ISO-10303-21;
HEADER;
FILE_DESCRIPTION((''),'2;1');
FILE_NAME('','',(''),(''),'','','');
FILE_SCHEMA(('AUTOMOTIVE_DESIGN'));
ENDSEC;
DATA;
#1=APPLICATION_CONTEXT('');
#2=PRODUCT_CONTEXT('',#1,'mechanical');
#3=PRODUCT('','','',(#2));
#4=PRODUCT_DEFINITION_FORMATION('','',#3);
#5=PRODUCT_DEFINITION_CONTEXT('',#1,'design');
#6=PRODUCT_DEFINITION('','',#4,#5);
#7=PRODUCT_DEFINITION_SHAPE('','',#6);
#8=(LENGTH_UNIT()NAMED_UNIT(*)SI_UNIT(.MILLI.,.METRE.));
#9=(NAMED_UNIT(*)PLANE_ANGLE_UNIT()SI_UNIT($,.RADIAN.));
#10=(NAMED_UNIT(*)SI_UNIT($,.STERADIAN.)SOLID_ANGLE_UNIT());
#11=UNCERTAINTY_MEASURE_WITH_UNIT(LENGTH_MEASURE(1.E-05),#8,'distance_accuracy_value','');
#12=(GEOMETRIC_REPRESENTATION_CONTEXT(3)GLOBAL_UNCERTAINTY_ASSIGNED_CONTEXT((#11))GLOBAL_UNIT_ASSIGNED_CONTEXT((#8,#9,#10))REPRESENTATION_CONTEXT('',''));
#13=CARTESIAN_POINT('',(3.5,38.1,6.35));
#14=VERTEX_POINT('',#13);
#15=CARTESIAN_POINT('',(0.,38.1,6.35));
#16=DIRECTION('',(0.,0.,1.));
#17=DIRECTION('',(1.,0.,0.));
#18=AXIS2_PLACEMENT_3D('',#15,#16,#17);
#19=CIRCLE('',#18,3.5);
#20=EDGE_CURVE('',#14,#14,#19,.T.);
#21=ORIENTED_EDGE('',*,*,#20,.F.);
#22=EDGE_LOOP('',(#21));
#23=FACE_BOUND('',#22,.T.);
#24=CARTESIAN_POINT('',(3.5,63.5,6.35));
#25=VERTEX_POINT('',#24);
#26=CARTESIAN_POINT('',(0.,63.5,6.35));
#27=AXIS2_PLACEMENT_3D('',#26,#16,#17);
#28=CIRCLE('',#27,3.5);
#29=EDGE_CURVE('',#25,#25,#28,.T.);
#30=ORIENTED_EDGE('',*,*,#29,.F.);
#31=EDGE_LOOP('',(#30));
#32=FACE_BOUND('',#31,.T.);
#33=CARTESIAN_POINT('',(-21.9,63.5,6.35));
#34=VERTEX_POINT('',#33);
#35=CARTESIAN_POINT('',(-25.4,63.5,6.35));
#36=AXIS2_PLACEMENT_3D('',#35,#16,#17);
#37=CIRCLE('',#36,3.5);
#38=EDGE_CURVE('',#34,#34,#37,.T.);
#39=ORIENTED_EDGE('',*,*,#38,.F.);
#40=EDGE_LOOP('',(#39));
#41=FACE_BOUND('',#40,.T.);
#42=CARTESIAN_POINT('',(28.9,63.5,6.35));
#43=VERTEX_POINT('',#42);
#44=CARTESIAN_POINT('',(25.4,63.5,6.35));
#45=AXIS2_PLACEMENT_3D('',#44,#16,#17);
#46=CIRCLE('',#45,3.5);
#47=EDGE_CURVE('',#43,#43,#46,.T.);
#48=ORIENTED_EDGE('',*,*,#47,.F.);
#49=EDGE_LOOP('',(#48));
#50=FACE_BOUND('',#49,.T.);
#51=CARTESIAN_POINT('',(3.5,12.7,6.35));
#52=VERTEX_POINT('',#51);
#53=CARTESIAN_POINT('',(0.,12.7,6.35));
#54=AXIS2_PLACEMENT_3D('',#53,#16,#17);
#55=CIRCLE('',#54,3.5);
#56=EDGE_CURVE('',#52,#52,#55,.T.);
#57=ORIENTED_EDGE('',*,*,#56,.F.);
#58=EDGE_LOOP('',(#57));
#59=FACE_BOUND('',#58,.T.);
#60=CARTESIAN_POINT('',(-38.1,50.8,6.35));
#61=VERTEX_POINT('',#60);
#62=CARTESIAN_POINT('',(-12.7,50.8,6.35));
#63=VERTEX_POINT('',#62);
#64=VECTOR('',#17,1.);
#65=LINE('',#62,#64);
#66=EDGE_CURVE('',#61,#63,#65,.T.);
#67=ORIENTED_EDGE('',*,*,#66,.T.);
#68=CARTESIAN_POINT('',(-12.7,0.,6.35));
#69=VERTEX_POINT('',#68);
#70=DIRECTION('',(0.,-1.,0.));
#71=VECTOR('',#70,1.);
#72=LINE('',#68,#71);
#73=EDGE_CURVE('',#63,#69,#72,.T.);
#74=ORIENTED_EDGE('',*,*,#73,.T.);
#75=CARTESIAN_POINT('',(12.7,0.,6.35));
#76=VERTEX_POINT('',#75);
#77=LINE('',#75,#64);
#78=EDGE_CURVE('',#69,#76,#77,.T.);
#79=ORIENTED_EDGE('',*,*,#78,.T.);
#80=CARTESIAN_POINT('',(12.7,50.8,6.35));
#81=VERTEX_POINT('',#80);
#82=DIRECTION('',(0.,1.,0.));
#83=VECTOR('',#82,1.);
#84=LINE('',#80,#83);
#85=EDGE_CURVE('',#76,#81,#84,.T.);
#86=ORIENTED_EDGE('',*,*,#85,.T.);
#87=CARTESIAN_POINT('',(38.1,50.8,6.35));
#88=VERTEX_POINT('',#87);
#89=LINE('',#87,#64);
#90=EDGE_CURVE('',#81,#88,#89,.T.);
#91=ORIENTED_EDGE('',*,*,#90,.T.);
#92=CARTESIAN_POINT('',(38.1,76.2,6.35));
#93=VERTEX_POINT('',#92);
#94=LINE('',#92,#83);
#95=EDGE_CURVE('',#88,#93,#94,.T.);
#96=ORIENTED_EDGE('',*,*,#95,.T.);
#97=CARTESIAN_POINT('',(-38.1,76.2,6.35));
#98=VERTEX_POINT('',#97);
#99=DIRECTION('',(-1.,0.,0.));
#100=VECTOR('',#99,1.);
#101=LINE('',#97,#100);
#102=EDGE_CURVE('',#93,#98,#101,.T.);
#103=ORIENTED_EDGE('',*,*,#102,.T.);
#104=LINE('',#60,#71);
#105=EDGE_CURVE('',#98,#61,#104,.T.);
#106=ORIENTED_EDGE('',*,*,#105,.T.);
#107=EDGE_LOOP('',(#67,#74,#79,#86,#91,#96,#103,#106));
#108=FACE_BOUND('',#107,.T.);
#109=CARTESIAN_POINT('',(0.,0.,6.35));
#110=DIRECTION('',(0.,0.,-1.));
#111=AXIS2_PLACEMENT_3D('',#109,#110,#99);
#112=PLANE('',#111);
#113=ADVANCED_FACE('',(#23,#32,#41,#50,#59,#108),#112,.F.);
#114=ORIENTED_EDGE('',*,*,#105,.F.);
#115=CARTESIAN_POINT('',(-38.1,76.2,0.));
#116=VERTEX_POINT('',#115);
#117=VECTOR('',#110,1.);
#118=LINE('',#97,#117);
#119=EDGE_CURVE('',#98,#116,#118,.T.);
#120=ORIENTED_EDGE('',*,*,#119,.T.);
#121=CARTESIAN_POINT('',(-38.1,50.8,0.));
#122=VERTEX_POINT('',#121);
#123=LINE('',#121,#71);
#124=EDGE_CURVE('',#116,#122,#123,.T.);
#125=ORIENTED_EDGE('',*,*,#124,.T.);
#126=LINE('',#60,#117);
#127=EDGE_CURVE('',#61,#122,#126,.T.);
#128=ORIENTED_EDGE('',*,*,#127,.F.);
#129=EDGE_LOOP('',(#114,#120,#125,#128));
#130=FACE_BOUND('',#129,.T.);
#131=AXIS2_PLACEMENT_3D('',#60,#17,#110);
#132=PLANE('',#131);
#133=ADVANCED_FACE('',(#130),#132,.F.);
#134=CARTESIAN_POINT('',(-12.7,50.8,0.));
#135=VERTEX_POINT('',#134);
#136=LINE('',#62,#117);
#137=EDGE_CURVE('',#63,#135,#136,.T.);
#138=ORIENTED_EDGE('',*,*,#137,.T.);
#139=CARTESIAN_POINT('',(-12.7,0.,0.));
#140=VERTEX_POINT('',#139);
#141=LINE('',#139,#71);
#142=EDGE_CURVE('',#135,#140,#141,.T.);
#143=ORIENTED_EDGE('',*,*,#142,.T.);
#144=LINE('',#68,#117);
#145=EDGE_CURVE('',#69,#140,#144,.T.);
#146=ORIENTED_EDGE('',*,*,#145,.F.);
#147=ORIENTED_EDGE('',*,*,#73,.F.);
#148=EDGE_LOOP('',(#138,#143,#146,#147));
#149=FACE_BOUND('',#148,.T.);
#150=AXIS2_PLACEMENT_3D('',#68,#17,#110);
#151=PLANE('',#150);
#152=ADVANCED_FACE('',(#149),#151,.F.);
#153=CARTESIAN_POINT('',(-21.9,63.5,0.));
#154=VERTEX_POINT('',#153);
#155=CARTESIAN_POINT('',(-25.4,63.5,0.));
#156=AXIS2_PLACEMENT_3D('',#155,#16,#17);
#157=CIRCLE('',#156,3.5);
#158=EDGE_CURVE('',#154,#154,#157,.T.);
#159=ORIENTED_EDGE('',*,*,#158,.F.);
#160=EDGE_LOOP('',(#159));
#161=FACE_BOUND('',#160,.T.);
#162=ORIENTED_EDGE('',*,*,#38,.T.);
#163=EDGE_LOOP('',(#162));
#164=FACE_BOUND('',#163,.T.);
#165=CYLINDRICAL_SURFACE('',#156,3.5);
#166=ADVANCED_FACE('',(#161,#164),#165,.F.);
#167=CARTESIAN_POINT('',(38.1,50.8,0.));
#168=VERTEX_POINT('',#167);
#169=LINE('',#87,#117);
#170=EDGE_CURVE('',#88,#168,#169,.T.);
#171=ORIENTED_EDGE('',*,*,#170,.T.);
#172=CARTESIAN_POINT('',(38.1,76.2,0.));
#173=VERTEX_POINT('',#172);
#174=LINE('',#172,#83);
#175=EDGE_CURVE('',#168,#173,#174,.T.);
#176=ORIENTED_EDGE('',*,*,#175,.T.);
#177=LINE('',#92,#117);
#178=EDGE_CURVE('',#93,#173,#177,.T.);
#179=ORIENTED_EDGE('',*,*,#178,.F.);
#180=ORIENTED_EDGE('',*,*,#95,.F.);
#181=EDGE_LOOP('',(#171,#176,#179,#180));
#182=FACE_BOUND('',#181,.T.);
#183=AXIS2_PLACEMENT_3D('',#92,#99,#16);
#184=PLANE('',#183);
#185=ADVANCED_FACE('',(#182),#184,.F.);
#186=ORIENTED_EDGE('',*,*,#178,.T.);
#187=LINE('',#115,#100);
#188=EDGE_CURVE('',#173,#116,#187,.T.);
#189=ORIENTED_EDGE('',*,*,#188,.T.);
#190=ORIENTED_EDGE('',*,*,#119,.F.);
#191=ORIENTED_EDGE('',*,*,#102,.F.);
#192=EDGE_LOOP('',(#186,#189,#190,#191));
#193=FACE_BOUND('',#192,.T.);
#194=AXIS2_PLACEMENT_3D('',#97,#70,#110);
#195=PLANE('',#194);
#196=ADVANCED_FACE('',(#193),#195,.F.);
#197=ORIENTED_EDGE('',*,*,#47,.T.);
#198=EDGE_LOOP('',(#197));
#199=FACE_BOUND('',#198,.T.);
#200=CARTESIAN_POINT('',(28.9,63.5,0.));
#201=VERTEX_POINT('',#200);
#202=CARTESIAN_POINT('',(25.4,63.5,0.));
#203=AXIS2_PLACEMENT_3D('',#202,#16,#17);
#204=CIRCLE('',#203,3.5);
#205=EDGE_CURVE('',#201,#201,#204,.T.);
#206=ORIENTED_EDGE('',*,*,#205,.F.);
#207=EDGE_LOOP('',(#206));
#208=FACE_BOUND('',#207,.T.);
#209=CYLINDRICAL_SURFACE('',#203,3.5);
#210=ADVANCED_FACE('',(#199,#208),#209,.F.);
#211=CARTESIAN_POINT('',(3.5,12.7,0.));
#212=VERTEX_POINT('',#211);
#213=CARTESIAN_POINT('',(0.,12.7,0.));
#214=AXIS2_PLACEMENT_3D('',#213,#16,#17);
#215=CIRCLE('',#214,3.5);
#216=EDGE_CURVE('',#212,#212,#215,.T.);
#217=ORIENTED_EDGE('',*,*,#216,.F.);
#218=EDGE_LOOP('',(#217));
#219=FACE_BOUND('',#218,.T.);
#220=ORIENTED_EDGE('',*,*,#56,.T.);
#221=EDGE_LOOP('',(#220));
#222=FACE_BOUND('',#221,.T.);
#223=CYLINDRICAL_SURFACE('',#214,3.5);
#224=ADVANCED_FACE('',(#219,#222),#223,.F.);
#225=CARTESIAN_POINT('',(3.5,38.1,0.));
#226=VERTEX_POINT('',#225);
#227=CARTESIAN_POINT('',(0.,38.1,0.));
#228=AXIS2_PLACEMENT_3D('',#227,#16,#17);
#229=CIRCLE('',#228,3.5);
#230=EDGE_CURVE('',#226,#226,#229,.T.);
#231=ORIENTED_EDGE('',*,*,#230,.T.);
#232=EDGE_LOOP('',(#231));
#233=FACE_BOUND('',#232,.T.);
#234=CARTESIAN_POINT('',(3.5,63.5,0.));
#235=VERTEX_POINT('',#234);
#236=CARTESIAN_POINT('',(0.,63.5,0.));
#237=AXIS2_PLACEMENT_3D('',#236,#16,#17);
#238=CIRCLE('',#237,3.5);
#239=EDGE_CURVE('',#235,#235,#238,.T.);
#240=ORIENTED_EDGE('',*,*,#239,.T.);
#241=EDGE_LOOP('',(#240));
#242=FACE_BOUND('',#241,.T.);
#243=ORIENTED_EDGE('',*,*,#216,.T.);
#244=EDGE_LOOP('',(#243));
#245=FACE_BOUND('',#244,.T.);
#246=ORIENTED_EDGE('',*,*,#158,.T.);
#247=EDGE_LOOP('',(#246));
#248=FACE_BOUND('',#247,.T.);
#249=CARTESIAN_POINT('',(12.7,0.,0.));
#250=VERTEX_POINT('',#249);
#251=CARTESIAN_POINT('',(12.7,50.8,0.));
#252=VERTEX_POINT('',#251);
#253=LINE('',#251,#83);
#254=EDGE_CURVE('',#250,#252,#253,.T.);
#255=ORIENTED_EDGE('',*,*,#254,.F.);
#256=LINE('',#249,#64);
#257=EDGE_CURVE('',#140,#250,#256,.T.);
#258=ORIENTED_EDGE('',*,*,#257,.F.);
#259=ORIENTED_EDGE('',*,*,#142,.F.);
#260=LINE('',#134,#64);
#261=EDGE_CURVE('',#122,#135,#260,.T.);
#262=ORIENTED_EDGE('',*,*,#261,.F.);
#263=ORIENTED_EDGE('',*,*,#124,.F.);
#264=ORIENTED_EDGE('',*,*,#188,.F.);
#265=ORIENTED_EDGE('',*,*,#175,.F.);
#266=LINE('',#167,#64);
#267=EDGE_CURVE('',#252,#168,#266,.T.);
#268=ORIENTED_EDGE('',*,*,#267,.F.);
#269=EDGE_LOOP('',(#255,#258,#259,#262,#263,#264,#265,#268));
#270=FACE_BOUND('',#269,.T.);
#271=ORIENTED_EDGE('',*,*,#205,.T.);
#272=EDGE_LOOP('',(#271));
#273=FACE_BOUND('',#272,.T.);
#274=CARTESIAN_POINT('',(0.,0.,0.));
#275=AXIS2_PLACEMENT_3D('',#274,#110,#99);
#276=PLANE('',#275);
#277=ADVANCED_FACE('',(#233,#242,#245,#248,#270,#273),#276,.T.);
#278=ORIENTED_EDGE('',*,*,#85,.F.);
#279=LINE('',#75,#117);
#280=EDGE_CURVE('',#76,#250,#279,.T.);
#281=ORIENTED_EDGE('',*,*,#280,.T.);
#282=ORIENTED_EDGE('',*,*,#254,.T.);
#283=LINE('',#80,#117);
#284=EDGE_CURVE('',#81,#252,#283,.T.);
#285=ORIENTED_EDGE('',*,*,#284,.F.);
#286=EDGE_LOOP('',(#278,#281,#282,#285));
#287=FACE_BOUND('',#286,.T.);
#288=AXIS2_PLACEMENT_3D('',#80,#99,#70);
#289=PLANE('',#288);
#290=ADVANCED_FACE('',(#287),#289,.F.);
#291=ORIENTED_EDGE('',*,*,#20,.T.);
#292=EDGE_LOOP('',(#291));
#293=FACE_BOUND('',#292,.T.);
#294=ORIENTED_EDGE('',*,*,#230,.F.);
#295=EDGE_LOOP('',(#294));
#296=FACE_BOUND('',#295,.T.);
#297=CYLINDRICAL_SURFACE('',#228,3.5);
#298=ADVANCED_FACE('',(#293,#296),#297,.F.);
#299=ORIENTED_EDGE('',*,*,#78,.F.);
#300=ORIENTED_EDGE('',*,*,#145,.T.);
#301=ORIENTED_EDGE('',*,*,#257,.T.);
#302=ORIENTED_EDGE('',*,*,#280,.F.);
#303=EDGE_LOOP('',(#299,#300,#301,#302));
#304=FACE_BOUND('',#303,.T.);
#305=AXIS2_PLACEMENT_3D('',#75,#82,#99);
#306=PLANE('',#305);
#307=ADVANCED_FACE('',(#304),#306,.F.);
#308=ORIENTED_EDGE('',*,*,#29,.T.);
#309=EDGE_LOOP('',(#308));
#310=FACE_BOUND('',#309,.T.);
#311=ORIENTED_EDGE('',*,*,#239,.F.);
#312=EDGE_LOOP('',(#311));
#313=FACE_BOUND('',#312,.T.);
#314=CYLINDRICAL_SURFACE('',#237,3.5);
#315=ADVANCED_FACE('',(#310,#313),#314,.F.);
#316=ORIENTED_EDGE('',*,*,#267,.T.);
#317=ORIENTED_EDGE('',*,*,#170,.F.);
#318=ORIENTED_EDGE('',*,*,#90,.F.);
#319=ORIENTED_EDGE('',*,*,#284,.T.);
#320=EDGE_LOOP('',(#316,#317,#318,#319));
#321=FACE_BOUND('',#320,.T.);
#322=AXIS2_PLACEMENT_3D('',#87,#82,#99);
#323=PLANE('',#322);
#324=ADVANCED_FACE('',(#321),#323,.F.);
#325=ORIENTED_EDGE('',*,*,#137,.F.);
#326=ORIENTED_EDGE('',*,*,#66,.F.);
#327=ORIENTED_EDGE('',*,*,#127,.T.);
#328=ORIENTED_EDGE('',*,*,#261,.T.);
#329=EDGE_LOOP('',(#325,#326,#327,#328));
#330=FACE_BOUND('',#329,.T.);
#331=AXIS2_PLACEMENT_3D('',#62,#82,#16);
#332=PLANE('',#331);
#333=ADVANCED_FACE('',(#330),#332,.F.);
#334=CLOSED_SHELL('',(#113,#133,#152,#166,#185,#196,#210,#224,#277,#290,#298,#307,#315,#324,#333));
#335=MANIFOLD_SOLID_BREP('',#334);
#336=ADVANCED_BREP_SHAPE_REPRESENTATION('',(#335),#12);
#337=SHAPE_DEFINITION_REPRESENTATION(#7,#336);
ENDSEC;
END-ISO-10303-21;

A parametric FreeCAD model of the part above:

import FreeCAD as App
import Part
import Sketcher
Q = App.Units.Quantity

doc = App.newDocument("Part")
body = doc.addObject("PartDesign::Body", "Body")

sketch1 = body.newObject("Sketcher::SketchObject", "Sketch")
sketch1.AttachmentSupport = (doc.getObject("XY_Plane"), [""])
sketch1.MapMode = "FlatFace"
sketch1.addGeometry([
    Part.LineSegment(App.Vector(-13, 0, 0), App.Vector(13, 0, 0)),
    Part.LineSegment(App.Vector(13, 0, 0), App.Vector(13, 51, 0)),
    Part.LineSegment(App.Vector(13, 51, 0), App.Vector(38, 51, 0)),
    Part.LineSegment(App.Vector(38, 51, 0), App.Vector(38, 76, 0)),
    Part.LineSegment(App.Vector(38, 76, 0), App.Vector(-38, 76, 0)),
    Part.LineSegment(App.Vector(-38, 76, 0), App.Vector(-38, 51, 0)),
    Part.LineSegment(App.Vector(-38, 51, 0), App.Vector(-13, 51, 0)),
    Part.LineSegment(App.Vector(-13, 51, 0), App.Vector(-13, 0, 0)),
], False)
sketch1.addConstraint([
    Sketcher.Constraint("Coincident", 0, 2, 1, 1),
    Sketcher.Constraint("Coincident", 1, 2, 2, 1),
    Sketcher.Constraint("Coincident", 2, 2, 3, 1),
    Sketcher.Constraint("Coincident", 3, 2, 4, 1),
    Sketcher.Constraint("Coincident", 4, 2, 5, 1),
    Sketcher.Constraint("Coincident", 5, 2, 6, 1),
    Sketcher.Constraint("Coincident", 6, 2, 7, 1),
    Sketcher.Constraint("Coincident", 7, 2, 0, 1),
    Sketcher.Constraint("Horizontal", 0),
    Sketcher.Constraint("Vertical", 1),
    Sketcher.Constraint("Horizontal", 2),
    Sketcher.Constraint("Vertical", 3),
    Sketcher.Constraint("Horizontal", 4),
    Sketcher.Constraint("Vertical", 5),
    Sketcher.Constraint("Horizontal", 6),
    Sketcher.Constraint("Vertical", 7),
    Sketcher.Constraint("Symmetric", 0, 2, 7, 2, -1, 1),
    Sketcher.Constraint("Symmetric", 2, 2, 5, 2, -2),
    Sketcher.Constraint("Equal", 0, 2),
    Sketcher.Constraint("Equal", 6, 3),
    Sketcher.Constraint("DistanceX", 0, 1, 0, 2, Q("1 in")),
    Sketcher.Constraint("DistanceY", 1, 1, 1, 2, Q("2 in")),
])
pad1 = body.newObject("PartDesign::Pad", "Pad")
pad1.Profile = sketch1
pad1.Length = Q("0.25 in")

sketch2 = body.newObject("Sketcher::SketchObject", "Sketch001")
sketch2.AttachmentSupport = (doc.getObject("XY_Plane"), [""])
sketch2.MapMode = "FlatFace"
sketch2.AttachmentOffset = App.Placement(App.Vector(0, 0, 0.25 * 25.4), App.Rotation())
sketch2.addGeometry([
    Part.Circle(App.Vector(0, 63.5, 0), App.Vector(0, 0, 1), 3.5),
    Part.Circle(App.Vector(25.4, 63.5, 0), App.Vector(0, 0, 1), 3.5),
    Part.Circle(App.Vector(-25.4, 63.5, 0), App.Vector(0, 0, 1), 3.5),
    Part.Circle(App.Vector(0, 38.1, 0), App.Vector(0, 0, 1), 3.5),
    Part.Circle(App.Vector(0, 12.7, 0), App.Vector(0, 0, 1), 3.5),
], False)
sketch2.addConstraint([
    Sketcher.Constraint("Equal", 0, 1),
    Sketcher.Constraint("Equal", 1, 2),
    Sketcher.Constraint("Equal", 2, 3),
    Sketcher.Constraint("Equal", 3, 4),
    Sketcher.Constraint("Symmetric", 1, 3, 2, 3, -2),
    Sketcher.Constraint("PointOnObject", 0, 3, -2),
    Sketcher.Constraint("PointOnObject", 3, 3, -2),
    Sketcher.Constraint("PointOnObject", 4, 3, -2),
    Sketcher.Constraint("Horizontal", 0, 3, 1, 3),
    Sketcher.Constraint("DistanceX", -1, 1, 1, 3, Q("1 in")),
    Sketcher.Constraint("DistanceY", 3, 3, 0, 3, Q("1 in")),
    Sketcher.Constraint("DistanceY", 4, 3, 3, 3, Q("1 in")),
    Sketcher.Constraint("DistanceY", -1, 1, 0, 3, Q("2.5 in")),
    Sketcher.Constraint("Diameter", 0, 7.0),
])
pocket1 = body.newObject("PartDesign::Pocket", "Pocket")
pocket1.Profile = sketch2
pocket1.Type = "ThroughAll"

doc.recompute()
